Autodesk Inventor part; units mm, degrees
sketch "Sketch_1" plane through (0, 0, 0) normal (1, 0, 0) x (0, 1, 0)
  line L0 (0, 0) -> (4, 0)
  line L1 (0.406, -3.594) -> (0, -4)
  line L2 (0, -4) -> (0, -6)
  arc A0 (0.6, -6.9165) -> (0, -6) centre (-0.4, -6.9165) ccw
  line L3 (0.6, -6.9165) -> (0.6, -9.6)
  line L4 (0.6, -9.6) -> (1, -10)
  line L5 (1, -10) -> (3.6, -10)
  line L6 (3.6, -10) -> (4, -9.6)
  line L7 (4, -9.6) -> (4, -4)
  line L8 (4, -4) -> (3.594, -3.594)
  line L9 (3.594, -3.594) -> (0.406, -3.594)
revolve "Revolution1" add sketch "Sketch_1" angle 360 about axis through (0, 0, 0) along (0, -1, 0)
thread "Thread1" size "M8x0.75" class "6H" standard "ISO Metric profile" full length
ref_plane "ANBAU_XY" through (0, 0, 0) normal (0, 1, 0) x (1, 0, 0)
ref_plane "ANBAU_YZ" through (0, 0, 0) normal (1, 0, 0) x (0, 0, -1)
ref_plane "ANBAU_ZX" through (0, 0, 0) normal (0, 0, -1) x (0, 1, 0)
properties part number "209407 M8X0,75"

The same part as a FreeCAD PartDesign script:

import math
import FreeCAD as App
import Part
import Sketcher

V = App.Vector
Q = App.Units.Quantity

doc = App.newDocument("Part")
body = doc.addObject("PartDesign::Body", "Body")

# Sketch on YZ plane
sketch1 = doc.addObject("Sketcher::SketchObject", "Sketch")
body.addObject(sketch1)
sketch1.AttachmentSupport = (doc.YZ_Plane, [""])
sketch1.MapMode = "FlatFace"
sketch1.addGeometry([
    Part.LineSegment(V(3.6, -3.6, 0), V(0.4, -3.6, 0)),  # 0
    Part.LineSegment(V(0.4, -3.6, 0), V(0, -4, 0)),  # 1
    Part.LineSegment(V(0, -4, 0), V(0, -6, 0)),  # 2
    Part.ArcOfCircle(Part.Circle(V(-0.4, -6.9, 0), V(0, 0, 1), 1), math.radians(0), math.radians(66)),  # 3
    Part.LineSegment(V(0.6, -6.9, 0), V(0.6, -9.6, 0)),  # 4
    Part.LineSegment(V(0.6, -9.6, 0), V(1, -10, 0)),  # 5
    Part.LineSegment(V(1, -10, 0), V(3.6, -10, 0)),  # 6
    Part.LineSegment(V(3.6, -10, 0), V(4, -9.6, 0)),  # 7
    Part.LineSegment(V(4, -9.6, 0), V(4, -4, 0)),  # 8
    Part.LineSegment(V(4, -4, 0), V(3.6, -3.6, 0)),  # 9
], False)
sketch1.addConstraint([
    Sketcher.Constraint("Coincident", 0, 2, 1, 1),
    Sketcher.Constraint("Coincident", 1, 2, 2, 1),
    Sketcher.Constraint("Coincident", 2, 2, 3, 2),
    Sketcher.Constraint("Tangent", 3, 1, 4, 1),
    Sketcher.Constraint("Coincident", 4, 2, 5, 1),
    Sketcher.Constraint("Coincident", 5, 2, 6, 1),
    Sketcher.Constraint("Coincident", 6, 2, 7, 1),
    Sketcher.Constraint("Coincident", 7, 2, 8, 1),
    Sketcher.Constraint("Coincident", 8, 2, 9, 1),
    Sketcher.Constraint("Coincident", 9, 2, 0, 1),
    Sketcher.Constraint("Horizontal", 0),
    Sketcher.Constraint("Vertical", 2),
    Sketcher.Constraint("Vertical", 4),
    Sketcher.Constraint("Horizontal", 6),
    Sketcher.Constraint("Vertical", 8),
    Sketcher.Constraint("PointOnObject", 1, 2, -2),
    Sketcher.Constraint("Perpendicular", 1, 5),
    Sketcher.Constraint("Perpendicular", 5, 7),
    Sketcher.Constraint("Perpendicular", 7, 9),
    Sketcher.Constraint("Horizontal", 4, 2, 7, 2),
    Sketcher.Constraint("Horizontal", 1, 2, 8, 2),
    Sketcher.Constraint("Equal", 5, 7),
    Sketcher.Constraint("Radius", 3, Q("1 mm")),
    Sketcher.Constraint("DistanceY", 2, 2, 2, 1, Q("2 mm")),
    Sketcher.Constraint("DistanceX", 6, 1, 6, 2, Q("2.6 mm")),
    Sketcher.Constraint("DistanceY", 8, 1, 8, 2, Q("5.6 mm")),
    Sketcher.Constraint("DistanceY", 1, 2, -1, 1, Q("4 mm")),
    Sketcher.Constraint("DistanceX", -1, 1, 5, 2, Q("1 mm")),
    Sketcher.Constraint("DistanceY", 5, 2, -1, 1, Q("10 mm")),
    Sketcher.Constraint("DistanceX", 0, 2, 0, 1, Q("3.188 mm")),
])
revolution = doc.addObject("PartDesign::Revolution", "Revolution")
body.addObject(revolution)
revolution.Profile = sketch1
revolution.ReferenceAxis = (sketch1, ["H_Axis"])
revolution.Angle = 360

doc.recompute()
